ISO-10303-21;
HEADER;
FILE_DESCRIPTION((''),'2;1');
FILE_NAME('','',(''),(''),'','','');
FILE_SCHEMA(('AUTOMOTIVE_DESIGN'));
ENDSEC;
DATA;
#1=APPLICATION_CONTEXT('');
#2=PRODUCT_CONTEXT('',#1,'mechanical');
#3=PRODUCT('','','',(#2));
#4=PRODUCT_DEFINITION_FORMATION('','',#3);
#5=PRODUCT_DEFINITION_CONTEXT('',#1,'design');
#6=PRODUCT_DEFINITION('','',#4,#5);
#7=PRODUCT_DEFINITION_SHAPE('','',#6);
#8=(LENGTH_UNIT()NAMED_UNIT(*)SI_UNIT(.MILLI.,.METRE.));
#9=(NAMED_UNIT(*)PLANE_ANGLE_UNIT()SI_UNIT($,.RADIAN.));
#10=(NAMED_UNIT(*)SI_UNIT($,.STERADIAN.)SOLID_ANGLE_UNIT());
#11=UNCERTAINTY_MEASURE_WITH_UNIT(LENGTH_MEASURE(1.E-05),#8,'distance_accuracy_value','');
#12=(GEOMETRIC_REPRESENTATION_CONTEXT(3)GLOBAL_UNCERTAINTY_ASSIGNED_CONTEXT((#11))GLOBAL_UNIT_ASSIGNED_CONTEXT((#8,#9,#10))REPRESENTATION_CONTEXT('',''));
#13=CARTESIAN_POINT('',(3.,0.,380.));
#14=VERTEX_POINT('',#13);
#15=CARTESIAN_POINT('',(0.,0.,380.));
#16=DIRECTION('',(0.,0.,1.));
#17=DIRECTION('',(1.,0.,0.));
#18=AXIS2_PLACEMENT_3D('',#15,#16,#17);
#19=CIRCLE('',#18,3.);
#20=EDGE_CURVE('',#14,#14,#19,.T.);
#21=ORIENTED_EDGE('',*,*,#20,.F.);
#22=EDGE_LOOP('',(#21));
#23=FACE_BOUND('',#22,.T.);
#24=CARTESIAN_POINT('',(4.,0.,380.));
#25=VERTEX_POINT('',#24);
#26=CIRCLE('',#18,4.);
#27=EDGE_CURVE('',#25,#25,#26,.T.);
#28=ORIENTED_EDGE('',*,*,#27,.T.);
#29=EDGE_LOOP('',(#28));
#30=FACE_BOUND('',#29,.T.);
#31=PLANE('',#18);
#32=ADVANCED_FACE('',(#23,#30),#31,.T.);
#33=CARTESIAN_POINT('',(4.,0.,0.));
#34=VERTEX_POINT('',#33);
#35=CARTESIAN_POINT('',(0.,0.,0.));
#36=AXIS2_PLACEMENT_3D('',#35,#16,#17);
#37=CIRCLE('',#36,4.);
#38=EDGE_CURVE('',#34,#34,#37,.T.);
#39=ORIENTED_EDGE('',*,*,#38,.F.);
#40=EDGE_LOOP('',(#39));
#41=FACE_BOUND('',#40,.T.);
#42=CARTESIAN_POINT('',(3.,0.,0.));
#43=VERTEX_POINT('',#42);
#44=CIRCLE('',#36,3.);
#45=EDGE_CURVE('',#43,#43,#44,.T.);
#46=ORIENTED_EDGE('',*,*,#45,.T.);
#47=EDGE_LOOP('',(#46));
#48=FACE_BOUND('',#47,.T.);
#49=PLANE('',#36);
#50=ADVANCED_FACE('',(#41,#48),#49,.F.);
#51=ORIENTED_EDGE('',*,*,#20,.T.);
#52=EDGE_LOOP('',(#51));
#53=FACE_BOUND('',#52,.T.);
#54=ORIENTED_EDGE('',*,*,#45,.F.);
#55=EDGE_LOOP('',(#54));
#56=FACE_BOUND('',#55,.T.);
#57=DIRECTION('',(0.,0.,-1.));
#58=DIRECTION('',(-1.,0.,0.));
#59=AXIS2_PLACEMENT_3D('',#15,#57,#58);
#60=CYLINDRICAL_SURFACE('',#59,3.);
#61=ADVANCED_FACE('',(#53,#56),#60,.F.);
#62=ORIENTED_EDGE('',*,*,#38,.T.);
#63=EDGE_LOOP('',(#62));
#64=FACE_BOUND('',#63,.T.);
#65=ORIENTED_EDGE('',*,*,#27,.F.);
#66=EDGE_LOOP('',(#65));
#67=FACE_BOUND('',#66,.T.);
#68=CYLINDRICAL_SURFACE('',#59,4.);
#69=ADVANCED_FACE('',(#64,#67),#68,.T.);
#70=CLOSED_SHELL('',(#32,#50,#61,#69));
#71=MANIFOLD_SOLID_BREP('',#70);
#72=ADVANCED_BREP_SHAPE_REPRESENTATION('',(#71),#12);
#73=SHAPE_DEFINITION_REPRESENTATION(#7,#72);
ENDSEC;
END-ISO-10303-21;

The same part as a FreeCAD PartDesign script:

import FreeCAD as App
import Part
import Sketcher
Q = App.Units.Quantity

doc = App.newDocument("Part")
params = doc.addObject("Spreadsheet::Sheet", "Params")
for row, (alias, value) in enumerate([
    ("sketch1_diameter", "8 mm"),
    ("sketch1_diameter2", "6 mm"),
    ("pad1_length", "380 mm"),
], start=1):
    params.set(f"A{row}", alias)
    params.set(f"B{row}", "=" + value)
    params.setAlias(f"B{row}", alias)

body = doc.addObject("PartDesign::Body", "Body")

sketch1 = body.newObject("Sketcher::SketchObject", "Sketch")
sketch1.AttachmentSupport = (doc.getObject("XY_Plane"), [""])
sketch1.MapMode = "FlatFace"
sketch1.addGeometry([
    Part.Circle(App.Vector(0, 0, 0), App.Vector(0, 0, 1), 4),
    Part.Circle(App.Vector(0, 0, 0), App.Vector(0, 0, 1), 3),
], False)
sketch1.addConstraint([
    Sketcher.Constraint("Coincident", 0, 3, -1, 1),
    Sketcher.Constraint("Coincident", 1, 3, -1, 1),
    Sketcher.Constraint("Diameter", 0, Q("8 mm")),
    Sketcher.Constraint("Diameter", 1, Q("6 mm")),
])
sketch1.setExpression("Constraints[2]", "Params.sketch1_diameter")
sketch1.setExpression("Constraints[3]", "Params.sketch1_diameter2")
pad1 = body.newObject("PartDesign::Pad", "Pad")
pad1.Profile = sketch1
pad1.setExpression("Length", "Params.pad1_length")

doc.recompute()
